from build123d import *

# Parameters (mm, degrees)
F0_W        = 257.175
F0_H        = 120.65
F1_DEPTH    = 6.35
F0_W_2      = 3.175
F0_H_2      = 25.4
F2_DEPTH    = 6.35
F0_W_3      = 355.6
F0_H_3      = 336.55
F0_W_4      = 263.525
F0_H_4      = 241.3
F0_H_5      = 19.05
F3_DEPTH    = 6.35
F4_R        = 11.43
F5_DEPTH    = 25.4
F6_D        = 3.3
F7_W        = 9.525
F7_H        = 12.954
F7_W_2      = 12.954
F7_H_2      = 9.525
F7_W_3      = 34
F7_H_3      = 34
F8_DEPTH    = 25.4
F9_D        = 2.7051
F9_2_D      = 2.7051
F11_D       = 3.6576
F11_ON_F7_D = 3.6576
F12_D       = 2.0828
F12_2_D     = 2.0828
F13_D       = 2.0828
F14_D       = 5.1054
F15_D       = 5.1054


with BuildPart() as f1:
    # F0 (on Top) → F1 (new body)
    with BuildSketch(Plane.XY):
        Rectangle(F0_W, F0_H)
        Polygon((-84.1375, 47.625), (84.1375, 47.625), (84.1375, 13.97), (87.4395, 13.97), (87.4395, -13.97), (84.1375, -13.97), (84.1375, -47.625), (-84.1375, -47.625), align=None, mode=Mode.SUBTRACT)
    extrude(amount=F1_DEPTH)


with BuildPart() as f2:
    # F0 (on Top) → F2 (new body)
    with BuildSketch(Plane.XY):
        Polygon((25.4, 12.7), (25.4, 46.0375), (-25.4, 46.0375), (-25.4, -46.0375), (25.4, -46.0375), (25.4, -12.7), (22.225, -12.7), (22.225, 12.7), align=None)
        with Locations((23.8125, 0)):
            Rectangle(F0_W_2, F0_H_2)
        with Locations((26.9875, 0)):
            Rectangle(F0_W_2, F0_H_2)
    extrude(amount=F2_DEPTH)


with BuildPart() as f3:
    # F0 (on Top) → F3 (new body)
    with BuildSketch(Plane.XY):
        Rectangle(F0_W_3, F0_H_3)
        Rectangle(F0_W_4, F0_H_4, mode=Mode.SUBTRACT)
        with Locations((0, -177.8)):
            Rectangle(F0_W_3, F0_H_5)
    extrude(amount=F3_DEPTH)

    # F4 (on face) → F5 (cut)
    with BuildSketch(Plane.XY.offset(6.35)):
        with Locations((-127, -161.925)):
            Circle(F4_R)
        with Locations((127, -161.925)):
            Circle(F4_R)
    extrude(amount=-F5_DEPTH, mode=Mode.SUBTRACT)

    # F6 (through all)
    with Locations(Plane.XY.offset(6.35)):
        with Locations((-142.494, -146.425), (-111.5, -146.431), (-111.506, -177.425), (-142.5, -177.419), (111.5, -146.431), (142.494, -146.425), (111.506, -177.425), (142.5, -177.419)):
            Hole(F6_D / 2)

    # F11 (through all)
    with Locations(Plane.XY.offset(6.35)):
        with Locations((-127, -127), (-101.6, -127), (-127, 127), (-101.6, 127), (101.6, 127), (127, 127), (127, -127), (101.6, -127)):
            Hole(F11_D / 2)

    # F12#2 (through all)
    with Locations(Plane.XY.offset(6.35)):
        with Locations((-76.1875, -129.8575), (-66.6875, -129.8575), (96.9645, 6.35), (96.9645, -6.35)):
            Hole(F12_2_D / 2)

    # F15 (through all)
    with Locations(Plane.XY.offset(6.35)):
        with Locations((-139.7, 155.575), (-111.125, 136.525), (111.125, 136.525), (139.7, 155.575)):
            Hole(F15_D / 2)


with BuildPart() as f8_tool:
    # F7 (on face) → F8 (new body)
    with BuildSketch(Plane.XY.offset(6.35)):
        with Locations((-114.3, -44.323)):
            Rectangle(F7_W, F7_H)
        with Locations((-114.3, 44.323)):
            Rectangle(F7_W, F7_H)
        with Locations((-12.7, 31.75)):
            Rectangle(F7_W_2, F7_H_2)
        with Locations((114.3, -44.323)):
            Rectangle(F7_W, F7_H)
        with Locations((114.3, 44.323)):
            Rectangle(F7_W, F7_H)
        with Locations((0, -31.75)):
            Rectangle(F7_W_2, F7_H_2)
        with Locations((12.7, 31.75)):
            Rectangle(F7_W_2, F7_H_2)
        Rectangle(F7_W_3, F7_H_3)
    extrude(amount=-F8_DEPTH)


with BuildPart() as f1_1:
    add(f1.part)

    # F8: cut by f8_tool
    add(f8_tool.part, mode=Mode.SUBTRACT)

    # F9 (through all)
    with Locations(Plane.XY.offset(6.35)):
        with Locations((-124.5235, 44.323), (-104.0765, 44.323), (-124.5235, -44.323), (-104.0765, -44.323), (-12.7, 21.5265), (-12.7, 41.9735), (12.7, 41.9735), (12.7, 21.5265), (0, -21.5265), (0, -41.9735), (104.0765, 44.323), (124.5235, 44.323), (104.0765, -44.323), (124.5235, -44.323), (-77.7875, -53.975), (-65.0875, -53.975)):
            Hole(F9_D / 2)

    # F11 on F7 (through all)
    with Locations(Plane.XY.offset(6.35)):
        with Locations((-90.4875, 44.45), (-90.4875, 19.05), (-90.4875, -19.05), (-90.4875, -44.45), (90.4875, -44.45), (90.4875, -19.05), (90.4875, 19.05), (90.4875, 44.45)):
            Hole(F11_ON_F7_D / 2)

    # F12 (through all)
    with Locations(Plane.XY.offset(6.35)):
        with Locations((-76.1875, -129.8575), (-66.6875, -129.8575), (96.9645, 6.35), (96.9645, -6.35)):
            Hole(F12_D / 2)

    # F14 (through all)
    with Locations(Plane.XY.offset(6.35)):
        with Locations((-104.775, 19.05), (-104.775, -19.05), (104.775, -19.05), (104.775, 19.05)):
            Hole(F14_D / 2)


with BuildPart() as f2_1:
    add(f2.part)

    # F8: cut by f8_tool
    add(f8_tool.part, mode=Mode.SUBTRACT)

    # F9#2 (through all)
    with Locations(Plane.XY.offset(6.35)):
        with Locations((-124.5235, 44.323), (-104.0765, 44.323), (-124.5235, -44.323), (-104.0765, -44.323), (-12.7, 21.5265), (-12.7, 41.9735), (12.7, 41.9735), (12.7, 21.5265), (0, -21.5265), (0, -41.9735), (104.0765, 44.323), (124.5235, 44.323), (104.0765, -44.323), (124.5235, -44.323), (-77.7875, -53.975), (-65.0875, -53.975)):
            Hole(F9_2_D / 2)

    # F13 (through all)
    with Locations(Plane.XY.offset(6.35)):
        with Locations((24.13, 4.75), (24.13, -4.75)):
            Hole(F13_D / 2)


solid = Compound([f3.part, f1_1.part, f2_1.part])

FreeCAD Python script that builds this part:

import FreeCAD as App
import Part
import Sketcher
from FreeCAD import Vector
Q = App.Units.Quantity

doc = App.newDocument("Part")
body = doc.addObject("PartDesign::Body", "Body")

# Sketch on XY plane
sketch1 = doc.addObject("Sketcher::SketchObject", "Sketch")
body.addObject(sketch1)
sketch1.AttachmentSupport = (doc.XY_Plane, [""])
sketch1.MapMode = "FlatFace"
sketch1.addGeometry([
    Part.LineSegment(Vector(-128.6, 60.3, 0), Vector(-128.6, -60.3, 0)),  # 0
    Part.LineSegment(Vector(-128.6, -60.3, 0), Vector(128.6, -60.3, 0)),  # 1
    Part.LineSegment(Vector(128.6, -60.3, 0), Vector(128.6, 60.3, 0)),  # 2
    Part.LineSegment(Vector(128.6, 60.3, 0), Vector(-128.6, 60.3, 0)),  # 3
    Part.LineSegment(Vector(-84.1, -47.6, 0), Vector(-84.1, 47.6, 0)),  # 4
    Part.LineSegment(Vector(-84.1, 47.6, 0), Vector(84.1, 47.6, 0)),  # 5
    Part.LineSegment(Vector(84.1, 47.6, 0), Vector(84.1, 14, 0)),  # 6
    Part.LineSegment(Vector(84.1, 14, 0), Vector(87.4, 14, 0)),  # 7
    Part.LineSegment(Vector(87.4, 14, 0), Vector(87.4, -14, 0)),  # 8
    Part.LineSegment(Vector(87.4, -14, 0), Vector(84.1, -14, 0)),  # 9
    Part.LineSegment(Vector(84.1, -14, 0), Vector(84.1, -47.6, 0)),  # 10
    Part.LineSegment(Vector(84.1, -47.6, 0), Vector(-84.1, -47.6, 0)),  # 11
], False)
sketch1.addConstraint([
    Sketcher.Constraint("Coincident", 0, 2, 1, 1),
    Sketcher.Constraint("Coincident", 1, 2, 2, 1),
    Sketcher.Constraint("Coincident", 2, 2, 3, 1),
    Sketcher.Constraint("Coincident", 3, 2, 0, 1),
    Sketcher.Constraint("Coincident", 4, 2, 5, 1),
    Sketcher.Constraint("Coincident", 5, 2, 6, 1),
    Sketcher.Constraint("Coincident", 6, 2, 7, 1),
    Sketcher.Constraint("Coincident", 7, 2, 8, 1),
    Sketcher.Constraint("Coincident", 8, 2, 9, 1),
    Sketcher.Constraint("Coincident", 9, 2, 10, 1),
    Sketcher.Constraint("Coincident", 10, 2, 11, 1),
    Sketcher.Constraint("Coincident", 11, 2, 4, 1),
    Sketcher.Constraint("Vertical", 0),
    Sketcher.Constraint("Horizontal", 1),
    Sketcher.Constraint("Vertical", 2),
    Sketcher.Constraint("Horizontal", 3),
    Sketcher.Constraint("Vertical", 4),
    Sketcher.Constraint("Horizontal", 5),
    Sketcher.Constraint("Vertical", 6),
    Sketcher.Constraint("Horizontal", 7),
    Sketcher.Constraint("Vertical", 8),
    Sketcher.Constraint("Horizontal", 9),
    Sketcher.Constraint("Vertical", 10),
    Sketcher.Constraint("Horizontal", 11),
    Sketcher.Constraint("Symmetric", 0, 2, 2, 2, -1, 1),
    Sketcher.Constraint("Symmetric", 4, 2, 10, 2, -1, 1),
    Sketcher.Constraint("Symmetric", 6, 2, 9, 2, -1),
    Sketcher.Constraint("DistanceY", 8, 2, 8, 1, Q("1.1 in")),
    Sketcher.Constraint("DistanceX", 7, 1, 7, 2, Q("0.13 in")),
    Sketcher.Constraint("DistanceY", 0, 2, 0, 1, Q("4.75 in")),
    Sketcher.Constraint("DistanceY", 4, 1, 4, 2, Q("3.75 in")),
    Sketcher.Constraint("DistanceX", 1, 1, 1, 2, Q("10.125 in")),
    Sketcher.Constraint("DistanceX", 5, 1, 5, 2, Q("6.625 in")),
])
pad1 = doc.addObject("PartDesign::Pad", "Pad")
body.addObject(pad1)
pad1.Profile = sketch1
pad1.Length = Q("0.25 in")
body2 = doc.addObject("PartDesign::Body", "Body001")

# Sketch on XY plane
sketch2 = doc.addObject("Sketcher::SketchObject", "Sketch001")
body2.addObject(sketch2)
sketch2.AttachmentSupport = (doc.getObject("XY_Plane001"), [""])
sketch2.MapMode = "FlatFace"
sketch2.addGeometry([
    Part.LineSegment(Vector(25.4, 46, 0), Vector(-25.4, 46, 0)),  # 0
    Part.LineSegment(Vector(-25.4, 46, 0), Vector(-25.4, -46, 0)),  # 1
    Part.LineSegment(Vector(-25.4, -46, 0), Vector(25.4, -46, 0)),  # 2
    Part.LineSegment(Vector(25.4, -46, 0), Vector(25.4, -12.7, 0)),  # 3
    Part.LineSegment(Vector(25.4, -12.7, 0), Vector(28.6, -12.7, 0)),  # 4
    Part.LineSegment(Vector(28.6, -12.7, 0), Vector(28.6, 12.7, 0)),  # 5
    Part.LineSegment(Vector(28.6, 12.7, 0), Vector(25.4, 12.7, 0)),  # 6
    Part.LineSegment(Vector(25.4, 12.7, 0), Vector(25.4, 46, 0)),  # 7
], False)
sketch2.addConstraint([
    Sketcher.Constraint("Coincident", 0, 2, 1, 1),
    Sketcher.Constraint("Coincident", 1, 2, 2, 1),
    Sketcher.Constraint("Coincident", 2, 2, 3, 1),
    Sketcher.Constraint("Coincident", 3, 2, 4, 1),
    Sketcher.Constraint("Coincident", 4, 2, 5, 1),
    Sketcher.Constraint("Coincident", 5, 2, 6, 1),
    Sketcher.Constraint("Coincident", 6, 2, 7, 1),
    Sketcher.Constraint("Coincident", 7, 2, 0, 1),
    Sketcher.Constraint("Horizontal", 0),
    Sketcher.Constraint("Vertical", 1),
    Sketcher.Constraint("Horizontal", 2),
    Sketcher.Constraint("Vertical", 3),
    Sketcher.Constraint("Horizontal", 4),
    Sketcher.Constraint("Vertical", 5),
    Sketcher.Constraint("Horizontal", 6),
    Sketcher.Constraint("Vertical", 7),
    Sketcher.Constraint("Symmetric", 0, 2, 2, 2, -1, 1),
    Sketcher.Constraint("Symmetric", 3, 2, 6, 2, -1),
    Sketcher.Constraint("DistanceX", 0, 2, 0, 1, Q("2 in")),
    Sketcher.Constraint("DistanceY", 5, 1, 5, 2, Q("1 in")),
    Sketcher.Constraint("DistanceX", 4, 1, 4, 2, Q("0.125 in")),
    Sketcher.Constraint("DistanceY", 1, 2, 1, 1, Q("3.625 in")),
])
pad2 = doc.addObject("PartDesign::Pad", "Pad001")
body2.addObject(pad2)
pad2.Profile = sketch2
pad2.Length = Q("0.25 in")
body3 = doc.addObject("PartDesign::Body", "Body002")

# Sketch on XY plane
sketch3 = doc.addObject("Sketcher::SketchObject", "Sketch002")
body3.addObject(sketch3)
sketch3.AttachmentSupport = (doc.getObject("XY_Plane002"), [""])
sketch3.MapMode = "FlatFace"
sketch3.addGeometry([
    Part.LineSegment(Vector(-178, 168, 0), Vector(-178, -187, 0)),  # 0
    Part.LineSegment(Vector(-178, -187, 0), Vector(178, -187, 0)),  # 1
    Part.LineSegment(Vector(178, -187, 0), Vector(178, 168, 0)),  # 2
    Part.LineSegment(Vector(178, 168, 0), Vector(-178, 168, 0)),  # 3
    Part.LineSegment(Vector(132, -121, 0), Vector(-132, -121, 0)),  # 4
    Part.LineSegment(Vector(-132, -121, 0), Vector(-132, 121, 0)),  # 5
    Part.LineSegment(Vector(-132, 121, 0), Vector(132, 121, 0)),  # 6
    Part.LineSegment(Vector(132, 121, 0), Vector(132, -121, 0)),  # 7
], False)
sketch3.addConstraint([
    Sketcher.Constraint("Coincident", 0, 2, 1, 1),
    Sketcher.Constraint("Coincident", 1, 2, 2, 1),
    Sketcher.Constraint("Coincident", 2, 2, 3, 1),
    Sketcher.Constraint("Coincident", 3, 2, 0, 1),
    Sketcher.Constraint("Coincident", 4, 2, 5, 1),
    Sketcher.Constraint("Coincident", 5, 2, 6, 1),
    Sketcher.Constraint("Coincident", 6, 2, 7, 1),
    Sketcher.Constraint("Coincident", 7, 2, 4, 1),
    Sketcher.Constraint("Vertical", 0),
    Sketcher.Constraint("Horizontal", 1),
    Sketcher.Constraint("Vertical", 2),
    Sketcher.Constraint("Horizontal", 3),
    Sketcher.Constraint("Horizontal", 4),
    Sketcher.Constraint("Vertical", 5),
    Sketcher.Constraint("Horizontal", 6),
    Sketcher.Constraint("Vertical", 7),
    Sketcher.Constraint("Symmetric", 4, 2, 6, 2, -1, 1),
    Sketcher.Constraint("Equal", 3, 0),
    Sketcher.Constraint("DistanceX", 1, 1, 1, 2, Q("14 in")),
    Sketcher.Constraint("DistanceY", 5, 1, 5, 2, Q("9.5 in")),
    Sketcher.Constraint("DistanceX", 0, 2, -1, 1, Q("7 in")),
    Sketcher.Constraint("DistanceX", 4, 2, 4, 1, Q("10.375 in")),
    Sketcher.Constraint("DistanceY", 0, 2, -1, 1, Q("7.375 in")),
])
pad3 = doc.addObject("PartDesign::Pad", "Pad002")
body3.addObject(pad3)
pad3.Profile = sketch3
pad3.Length = Q("0.25 in")

# Sketch on XY plane
sketch4 = doc.addObject("Sketcher::SketchObject", "Sketch003")
body3.addObject(sketch4)
sketch4.AttachmentSupport = (doc.getObject("XY_Plane002"), [""])
sketch4.MapMode = "FlatFace"
sketch4.AttachmentOffset = App.Placement(Vector(0, 0, 0.25 * 25.4), App.Rotation())
sketch4.addGeometry([
    Part.Circle(Vector(-127, -162, 0), Vector(0, 0, 1), 11),
    Part.Circle(Vector(127, -162, 0), Vector(0, 0, 1), 11),
], False)
sketch4.addConstraint([
    Sketcher.Constraint("Equal", 0, 1),
    Sketcher.Constraint("Symmetric", 0, 3, 1, 3, -2),
    Sketcher.Constraint("Diameter", 0, Q("0.9 in")),
    Sketcher.Constraint("DistanceX", 0, 3, -1, 1, Q("5 in")),
    Sketcher.Constraint("DistanceY", 0, 3, -1, 1, Q("6.375 in")),
])
pocket1 = doc.addObject("PartDesign::Pocket", "Pocket")
body3.addObject(pocket1)
pocket1.Profile = sketch4
pocket1.Length = Q("1 in")

# Sketch on XY plane
sketch5 = doc.addObject("Sketcher::SketchObject", "Sketch004")
body3.addObject(sketch5)
sketch5.AttachmentSupport = (doc.getObject("XY_Plane002"), [""])
sketch5.MapMode = "FlatFace"
sketch5.AttachmentOffset = App.Placement(Vector(0, 0, 0.25 * 25.4), App.Rotation())
sketch5.addGeometry([
    Part.Circle(Vector(-142.5, -146.4, 0), Vector(0, 0, 1), 1.6),  # 0
    Part.Circle(Vector(-111.5, -146.4, 0), Vector(0, 0, 1), 1.6),  # 1
    Part.Circle(Vector(-111.5, -177.4, 0), Vector(0, 0, 1), 1.6),  # 2
    Part.Circle(Vector(-142.5, -177.4, 0), Vector(0, 0, 1), 1.6),  # 3
    Part.Circle(Vector(111.5, -146.4, 0), Vector(0, 0, 1), 1.6),  # 4
    Part.Circle(Vector(142.5, -146.4, 0), Vector(0, 0, 1), 1.6),  # 5
    Part.Circle(Vector(111.5, -177.4, 0), Vector(0, 0, 1), 1.6),  # 6
    Part.Circle(Vector(142.5, -177.4, 0), Vector(0, 0, 1), 1.6),  # 7
], False)
sketch5.addConstraint([
    Sketcher.Constraint("Equal", 0, 1),
    Sketcher.Constraint("Equal", 1, 2),
    Sketcher.Constraint("Equal", 2, 3),
    Sketcher.Constraint("Equal", 3, 4),
    Sketcher.Constraint("Equal", 4, 5),
    Sketcher.Constraint("Equal", 5, 6),
    Sketcher.Constraint("Equal", 6, 7),
    Sketcher.Constraint("Symmetric", 1, 3, 4, 3, -2),
    Sketcher.Constraint("Symmetric", 0, 3, 5, 3, -2),
    Sketcher.Constraint("Symmetric", 2, 3, 6, 3, -2),
    Sketcher.Constraint("Symmetric", 3, 3, 7, 3, -2),
    Sketcher.Constraint("DistanceX", 3, 3, 4, 3, Q("10 in")),
    Sketcher.Constraint("DistanceX", 2, 3, 5, 3, Q("10 in")),
    Sketcher.Constraint("Diameter", 0, Q("3.3 mm")),
    Sketcher.Constraint("DistanceX", 0, 3, -1, 1, Q("5.61 in")),
    Sketcher.Constraint("DistanceY", 3, 3, 1, 3, Q("1.22 in")),
    Sketcher.Constraint("DistanceY", 1, 3, -1, 1, Q("5.765 in")),
    Sketcher.Constraint("DistanceY", 0, 3, -1, 1, Q("146.425 mm")),
    Sketcher.Constraint("DistanceX", 1, 3, -1, 1, Q("111.5 mm")),
    Sketcher.Constraint("DistanceY", 2, 3, -1, 1, Q("177.425 mm")),
])
doc.recompute()
hole = doc.addObject("PartDesign::Hole", "Hole")
body3.addObject(hole)
hole.Profile = sketch5
hole.ThreadType = "None"
hole.Diameter = 3.3
hole.DepthType = "ThroughAll"

# Sketch on XY plane
sketch6 = doc.addObject("Sketcher::SketchObject", "Sketch005")
body3.addObject(sketch6)
sketch6.AttachmentSupport = (doc.getObject("XY_Plane002"), [""])
sketch6.MapMode = "FlatFace"
sketch6.AttachmentOffset = App.Placement(Vector(0, 0, 0.25 * 25.4), App.Rotation())
sketch6.addGeometry([
    Part.Circle(Vector(-127, -127, 0), Vector(0, 0, 1), 1.8),  # 0
    Part.Circle(Vector(-101.6, -127, 0), Vector(0, 0, 1), 1.8),  # 1
    Part.Circle(Vector(-127, 127, 0), Vector(0, 0, 1), 1.8),  # 2
    Part.Circle(Vector(-101.6, 127, 0), Vector(0, 0, 1), 1.8),  # 3
    Part.Circle(Vector(101.6, 127, 0), Vector(0, 0, 1), 1.8),  # 4
    Part.Circle(Vector(127, 127, 0), Vector(0, 0, 1), 1.8),  # 5
    Part.Circle(Vector(127, -127, 0), Vector(0, 0, 1), 1.8),  # 6
    Part.Circle(Vector(101.6, -127, 0), Vector(0, 0, 1), 1.8),  # 7
], False)
sketch6.addConstraint([
    Sketcher.Constraint("Equal", 0, 1),
    Sketcher.Constraint("Equal", 1, 2),
    Sketcher.Constraint("Equal", 2, 3),
    Sketcher.Constraint("Equal", 3, 4),
    Sketcher.Constraint("Equal", 4, 5),
    Sketcher.Constraint("Equal", 5, 6),
    Sketcher.Constraint("Equal", 6, 7),
    Sketcher.Constraint("Symmetric", 1, 3, 4, 3, -1, 1),
    Sketcher.Constraint("Symmetric", 0, 3, 5, 3, -1, 1),
    Sketcher.Constraint("Symmetric", 2, 3, 6, 3, -1, 1),
    Sketcher.Constraint("Symmetric", 3, 3, 7, 3, -1, 1),
    Sketcher.Constraint("Symmetric", 3, 3, 4, 3, -2),
    Sketcher.Constraint("Symmetric", 2, 3, 5, 3, -2),
    Sketcher.Constraint("Horizontal", 0, 3, 1, 3),
    Sketcher.Constraint("Diameter", 0, Q("0.144 in")),
    Sketcher.Constraint("DistanceX", 0, 3, -1, 1, Q("5 in")),
    Sketcher.Constraint("DistanceY", 0, 3, -1, 1, Q("5 in")),
    Sketcher.Constraint("DistanceX", 1, 3, -1, 1, Q("4 in")),
])
doc.recompute()
hole2 = doc.addObject("PartDesign::Hole", "Hole001")
body3.addObject(hole2)
hole2.Profile = sketch6
hole2.ThreadType = "None"
hole2.Diameter = Q("0.144 in")
hole2.DepthType = "ThroughAll"

# Sketch on XY plane
sketch7 = doc.addObject("Sketcher::SketchObject", "Sketch006")
body3.addObject(sketch7)
sketch7.AttachmentSupport = (doc.getObject("XY_Plane002"), [""])
sketch7.MapMode = "FlatFace"
sketch7.AttachmentOffset = App.Placement(Vector(0, 0, 0.25 * 25.4), App.Rotation())
sketch7.addGeometry([
    Part.Circle(Vector(-76.2, -129.9, 0), Vector(0, 0, 1), 1),
    Part.Circle(Vector(-66.7, -129.9, 0), Vector(0, 0, 1), 1),
    Part.Circle(Vector(97, 6.3, 0), Vector(0, 0, 1), 1),
    Part.Circle(Vector(97, -6.3, 0), Vector(0, 0, 1), 1),
], False)
sketch7.addConstraint([
    Sketcher.Constraint("Equal", 0, 1),
    Sketcher.Constraint("Equal", 1, 2),
    Sketcher.Constraint("Equal", 2, 3),
    Sketcher.Constraint("Symmetric", 2, 3, 3, 3, -1),
    Sketcher.Constraint("Horizontal", 0, 3, 1, 3),
    Sketcher.Constraint("Diameter", 0, Q("0.082 in")),
    Sketcher.Constraint("DistanceY", 3, 3, 2, 3, Q("0.5 in")),
    Sketcher.Constraint("DistanceY", 0, 3, -1, 1, Q("5.1125 in")),
    Sketcher.Constraint("DistanceX", -1, 1, 2, 3, Q("3.8175 in")),
    Sketcher.Constraint("DistanceX", 0, 3, -1, 1, Q("76.1875 mm")),
    Sketcher.Constraint("DistanceX", 1, 3, -1, 1, Q("66.6875 mm")),
])
doc.recompute()
hole3 = doc.addObject("PartDesign::Hole", "Hole002")
body3.addObject(hole3)
hole3.Profile = sketch7
hole3.ThreadType = "None"
hole3.Diameter = Q("0.082 in")
hole3.DepthType = "ThroughAll"

# Sketch on XY plane
sketch8 = doc.addObject("Sketcher::SketchObject", "Sketch007")
body3.addObject(sketch8)
sketch8.AttachmentSupport = (doc.getObject("XY_Plane002"), [""])
sketch8.MapMode = "FlatFace"
sketch8.AttachmentOffset = App.Placement(Vector(0, 0, 0.25 * 25.4), App.Rotation())
sketch8.addGeometry([
    Part.Circle(Vector(-139.7, 155.6, 0), Vector(0, 0, 1), 2.6),
    Part.Circle(Vector(-111.1, 136.5, 0), Vector(0, 0, 1), 2.6),
    Part.Circle(Vector(111.1, 136.5, 0), Vector(0, 0, 1), 2.6),
    Part.Circle(Vector(139.7, 155.6, 0), Vector(0, 0, 1), 2.6),
], False)
sketch8.addConstraint([
    Sketcher.Constraint("Equal", 0, 1),
    Sketcher.Constraint("Equal", 1, 2),
    Sketcher.Constraint("Equal", 2, 3),
    Sketcher.Constraint("Symmetric", 1, 3, 2, 3, -2),
    Sketcher.Constraint("Symmetric", 0, 3, 3, 3, -2),
    Sketcher.Constraint("Diameter", 0, Q("0.201 in")),
    Sketcher.Constraint("DistanceX", 0, 3, 3, 3, Q("11 in")),
    Sketcher.Constraint("DistanceY", 1, 3, 0, 3, Q("0.75 in")),
    Sketcher.Constraint("DistanceX", 1, 3, 2, 3, Q("8.75 in")),
    Sketcher.Constraint("DistanceY", -1, 1, 0, 3, Q("6.125 in")),
])
doc.recompute()
hole4 = doc.addObject("PartDesign::Hole", "Hole003")
body3.addObject(hole4)
hole4.Profile = sketch8
hole4.ThreadType = "None"
hole4.Diameter = Q("0.201 in")
hole4.DepthType = "ThroughAll"
body4 = doc.addObject("PartDesign::Body", "Body003")
body4.AllowCompound = True

# Sketch on XY plane
sketch9 = doc.addObject("Sketcher::SketchObject", "Sketch008")
body4.addObject(sketch9)
sketch9.AttachmentSupport = (doc.getObject("XY_Plane003"), [""])
sketch9.MapMode = "FlatFace"
sketch9.AttachmentOffset = App.Placement(Vector(0, 0, 0.25 * 25.4), App.Rotation())
sketch9.addGeometry([
    Part.LineSegment(Vector(-119, -38, 0), Vector(-119, -51, 0)),  # 0
    Part.LineSegment(Vector(-119, -51, 0), Vector(-110, -51, 0)),  # 1
    Part.LineSegment(Vector(-110, -51, 0), Vector(-110, -38, 0)),  # 2
    Part.LineSegment(Vector(-110, -38, 0), Vector(-119, -38, 0)),  # 3
    Part.LineSegment(Vector(-119, 51, 0), Vector(-119, 38, 0)),  # 4
    Part.LineSegment(Vector(-119, 38, 0), Vector(-110, 38, 0)),  # 5
    Part.LineSegment(Vector(-110, 38, 0), Vector(-110, 51, 0)),  # 6
    Part.LineSegment(Vector(-110, 51, 0), Vector(-119, 51, 0)),  # 7
    Part.LineSegment(Vector(-19, 37, 0), Vector(-19, 27, 0)),  # 8
    Part.LineSegment(Vector(-19, 27, 0), Vector(-6, 27, 0)),  # 9
    Part.LineSegment(Vector(-6, 27, 0), Vector(-6, 37, 0)),  # 10
    Part.LineSegment(Vector(-6, 37, 0), Vector(-19, 37, 0)),  # 11
    Part.LineSegment(Vector(110, -38, 0), Vector(110, -51, 0)),  # 12
    Part.LineSegment(Vector(110, -51, 0), Vector(119, -51, 0)),  # 13
    Part.LineSegment(Vector(119, -51, 0), Vector(119, -38, 0)),  # 14
    Part.LineSegment(Vector(119, -38, 0), Vector(110, -38, 0)),  # 15
    Part.LineSegment(Vector(110, 51, 0), Vector(110, 38, 0)),  # 16
    Part.LineSegment(Vector(110, 38, 0), Vector(119, 38, 0)),  # 17
    Part.LineSegment(Vector(119, 38, 0), Vector(119, 51, 0)),  # 18
    Part.LineSegment(Vector(119, 51, 0), Vector(110, 51, 0)),  # 19
    Part.LineSegment(Vector(-6, -27, 0), Vector(-6, -37, 0)),  # 20
    Part.LineSegment(Vector(-6, -37, 0), Vector(6, -37, 0)),  # 21
    Part.LineSegment(Vector(6, -37, 0), Vector(6, -27, 0)),  # 22
    Part.LineSegment(Vector(6, -27, 0), Vector(-6, -27, 0)),  # 23
    Part.LineSegment(Vector(6, 37, 0), Vector(6, 27, 0)),  # 24
    Part.LineSegment(Vector(6, 27, 0), Vector(19, 27, 0)),  # 25
    Part.LineSegment(Vector(19, 27, 0), Vector(19, 37, 0)),  # 26
    Part.LineSegment(Vector(19, 37, 0), Vector(6, 37, 0)),  # 27
    Part.LineSegment(Vector(-17, 17, 0), Vector(-17, -17, 0)),  # 28
    Part.LineSegment(Vector(-17, -17, 0), Vector(17, -17, 0)),  # 29
    Part.LineSegment(Vector(17, -17, 0), Vector(17, 17, 0)),  # 30
    Part.LineSegment(Vector(17, 17, 0), Vector(-17, 17, 0)),  # 31
], False)
sketch9.addConstraint([
    Sketcher.Constraint("Coincident", 0, 2, 1, 1),
    Sketcher.Constraint("Coincident", 1, 2, 2, 1),
    Sketcher.Constraint("Coincident", 2, 2, 3, 1),
    Sketcher.Constraint("Coincident", 3, 2, 0, 1),
    Sketcher.Constraint("Coincident", 4, 2, 5, 1),
    Sketcher.Constraint("Coincident", 5, 2, 6, 1),
    Sketcher.Constraint("Coincident", 6, 2, 7, 1),
    Sketcher.Constraint("Coincident", 7, 2, 4, 1),
    Sketcher.Constraint("Coincident", 8, 2, 9, 1),
    Sketcher.Constraint("Coincident", 9, 2, 10, 1),
    Sketcher.Constraint("Coincident", 10, 2, 11, 1),
    Sketcher.Constraint("Coincident", 11, 2, 8, 1),
    Sketcher.Constraint("Coincident", 12, 2, 13, 1),
    Sketcher.Constraint("Coincident", 13, 2, 14, 1),
    Sketcher.Constraint("Coincident", 14, 2, 15, 1),
    Sketcher.Constraint("Coincident", 15, 2, 12, 1),
    Sketcher.Constraint("Coincident", 16, 2, 17, 1),
    Sketcher.Constraint("Coincident", 17, 2, 18, 1),
    Sketcher.Constraint("Coincident", 18, 2, 19, 1),
    Sketcher.Constraint("Coincident", 19, 2, 16, 1),
    Sketcher.Constraint("Coincident", 20, 2, 21, 1),
    Sketcher.Constraint("Coincident", 21, 2, 22, 1),
    Sketcher.Constraint("Coincident", 22, 2, 23, 1),
    Sketcher.Constraint("Coincident", 23, 2, 20, 1),
    Sketcher.Constraint("Coincident", 24, 2, 25, 1),
    Sketcher.Constraint("Coincident", 25, 2, 26, 1),
    Sketcher.Constraint("Coincident", 26, 2, 27, 1),
    Sketcher.Constraint("Coincident", 27, 2, 24, 1),
    Sketcher.Constraint("Coincident", 28, 2, 29, 1),
    Sketcher.Constraint("Coincident", 29, 2, 30, 1),
    Sketcher.Constraint("Coincident", 30, 2, 31, 1),
    Sketcher.Constraint("Coincident", 31, 2, 28, 1),
    Sketcher.Constraint("Vertical", 0),
    Sketcher.Constraint("Horizontal", 1),
    Sketcher.Constraint("Vertical", 2),
    Sketcher.Constraint("Horizontal", 3),
    Sketcher.Constraint("Vertical", 4),
    Sketcher.Constraint("Horizontal", 5),
    Sketcher.Constraint("Vertical", 6),
    Sketcher.Constraint("Horizontal", 7),
    Sketcher.Constraint("Vertical", 8),
    Sketcher.Constraint("Horizontal", 9),
    Sketcher.Constraint("Vertical", 10),
    Sketcher.Constraint("Horizontal", 11),
    Sketcher.Constraint("Vertical", 12),
    Sketcher.Constraint("Horizontal", 13),
    Sketcher.Constraint("Vertical", 14),
    Sketcher.Constraint("Horizontal", 15),
    Sketcher.Constraint("Vertical", 16),
    Sketcher.Constraint("Horizontal", 17),
    Sketcher.Constraint("Vertical", 18),
    Sketcher.Constraint("Horizontal", 19),
    Sketcher.Constraint("Vertical", 20),
    Sketcher.Constraint("Horizontal", 21),
    Sketcher.Constraint("Vertical", 22),
    Sketcher.Constraint("Horizontal", 23),
    Sketcher.Constraint("Vertical", 24),
    Sketcher.Constraint("Horizontal", 25),
    Sketcher.Constraint("Vertical", 26),
    Sketcher.Constraint("Horizontal", 27),
    Sketcher.Constraint("Vertical", 28),
    Sketcher.Constraint("Horizontal", 29),
    Sketcher.Constraint("Vertical", 30),
    Sketcher.Constraint("Horizontal", 31),
    Sketcher.Constraint("Symmetric", 6, 2, 12, 2, -1, 1),
    Sketcher.Constraint("Symmetric", 4, 2, 14, 2, -1, 1),
    Sketcher.Constraint("Symmetric", 2, 2, 16, 2, -1, 1),
    Sketcher.Constraint("Symmetric", 0, 2, 18, 2, -1, 1),
    Sketcher.Constraint("Symmetric", 28, 2, 30, 2, -1, 1),
    Sketcher.Constraint("Symmetric", 1, 2, 12, 2, -2),
    Sketcher.Constraint("Symmetric", 3, 2, 14, 2, -2),
    Sketcher.Constraint("Symmetric", 9, 2, 24, 2, -2),
    Sketcher.Constraint("Symmetric", 11, 2, 26, 2, -2),
    Sketcher.Constraint("Equal", 11, 21),
    Sketcher.Constraint("Equal", 27, 0),
    Sketcher.Constraint("Equal", 19, 8),
    Sketcher.Constraint("Equal", 10, 20),
    Sketcher.Constraint("Equal", 31, 28),
    Sketcher.Constraint("DistanceY", 0, 2, -1, 1, Q("2 in")),
    Sketcher.Constraint("DistanceX", 8, 2, 24, 2, Q("1 in")),
    Sketcher.Constraint("DistanceX", 9, 1, 9, 2, Q("0.51 in")),
    Sketcher.Constraint("DistanceY", 20, 2, 9, 2, Q("2.5 in")),
    Sketcher.Constraint("DistanceX", 8, 2, 20, 2, Q("0.5 in")),
    Sketcher.Constraint("DistanceX", 1, 1, 1, 2, Q("0.375 in")),
    Sketcher.Constraint("DistanceX", 0, 2, -1, 1, Q("4.6875 in")),
    Sketcher.Constraint("DistanceY", -1, 1, 8, 2, Q("1.0625 in")),
    Sketcher.Constraint("DistanceX", 29, 1, 29, 2, Q("34 mm")),
])
pad4 = doc.addObject("PartDesign::Pad", "Pad003")
body4.addObject(pad4)
pad4.Profile = sketch9
pad4.Length = Q("1 in")
pad4.Reversed = True
doc.recompute()

body5 = doc.addObject("PartDesign::Body", "Body004")
body5.BaseFeature = body4
boolean = doc.addObject("PartDesign::Boolean", "Boolean")
body.addObject(boolean)
boolean.Type = "Cut"
boolean.addObjects([body5])
doc.recompute()

# Sketch on XY plane
sketch10 = doc.addObject("Sketcher::SketchObject", "Sketch009")
body.addObject(sketch10)
sketch10.AttachmentSupport = (doc.XY_Plane, [""])
sketch10.MapMode = "FlatFace"
sketch10.AttachmentOffset = App.Placement(Vector(0, 0, 0.25 * 25.4), App.Rotation())
sketch10.addGeometry([
    Part.Circle(Vector(-124.5, 44.3, 0), Vector(0, 0, 1), 1.4),  # 0
    Part.Circle(Vector(-104.1, 44.3, 0), Vector(0, 0, 1), 1.4),  # 1
    Part.Circle(Vector(-124.5, -44.3, 0), Vector(0, 0, 1), 1.4),  # 2
    Part.Circle(Vector(-104.1, -44.3, 0), Vector(0, 0, 1), 1.4),  # 3
    Part.Circle(Vector(-12.7, 21.5, 0), Vector(0, 0, 1), 1.4),  # 4
    Part.Circle(Vector(-12.7, 42, 0), Vector(0, 0, 1), 1.4),  # 5
    Part.Circle(Vector(12.7, 42, 0), Vector(0, 0, 1), 1.4),  # 6
    Part.Circle(Vector(12.7, 21.5, 0), Vector(0, 0, 1), 1.4),  # 7
    Part.Circle(Vector(0, -21.5, 0), Vector(0, 0, 1), 1.4),  # 8
    Part.Circle(Vector(0, -42, 0), Vector(0, 0, 1), 1.4),  # 9
    Part.Circle(Vector(104.1, 44.3, 0), Vector(0, 0, 1), 1.4),  # 10
    Part.Circle(Vector(124.5, 44.3, 0), Vector(0, 0, 1), 1.4),  # 11
    Part.Circle(Vector(104.1, -44.3, 0), Vector(0, 0, 1), 1.4),  # 12
    Part.Circle(Vector(124.5, -44.3, 0), Vector(0, 0, 1), 1.4),  # 13
    Part.Circle(Vector(-77.8, -54, 0), Vector(0, 0, 1), 1.4),  # 14
    Part.Circle(Vector(-65.1, -54, 0), Vector(0, 0, 1), 1.4),  # 15
], False)
sketch10.addConstraint([
    Sketcher.Constraint("Equal", 0, 1),
    Sketcher.Constraint("Equal", 1, 2),
    Sketcher.Constraint("Equal", 2, 3),
    Sketcher.Constraint("Equal", 3, 4),
    Sketcher.Constraint("Equal", 4, 5),
    Sketcher.Constraint("Equal", 5, 6),
    Sketcher.Constraint("Equal", 6, 7),
    Sketcher.Constraint("Equal", 7, 8),
    Sketcher.Constraint("Equal", 8, 9),
    Sketcher.Constraint("Equal", 9, 10),
    Sketcher.Constraint("Equal", 10, 11),
    Sketcher.Constraint("Equal", 11, 12),
    Sketcher.Constraint("Equal", 12, 13),
    Sketcher.Constraint("Equal", 13, 14),
    Sketcher.Constraint("Equal", 14, 15),
    Sketcher.Constraint("Symmetric", 3, 3, 10, 3, -1, 1),
    Sketcher.Constraint("Symmetric", 2, 3, 11, 3, -1, 1),
    Sketcher.Constraint("Symmetric", 1, 3, 12, 3, -1, 1),
    Sketcher.Constraint("Symmetric", 0, 3, 13, 3, -1, 1),
    Sketcher.Constraint("Symmetric", 5, 3, 6, 3, -2),
    Sketcher.Constraint("Symmetric", 4, 3, 7, 3, -2),
    Sketcher.Constraint("Symmetric", 1, 3, 10, 3, -2),
    Sketcher.Constraint("Symmetric", 0, 3, 11, 3, -2),
    Sketcher.Constraint("PointOnObject", 8, 3, -2),
    Sketcher.Constraint("PointOnObject", 9, 3, -2),
    Sketcher.Constraint("Horizontal", 0, 3, 1, 3),
    Sketcher.Constraint("Horizontal", 14, 3, 15, 3),
    Sketcher.Constraint("Vertical", 4, 3, 5, 3),
    Sketcher.Constraint("DistanceX", 5, 3, 6, 3, Q("1 in")),
    Sketcher.Constraint("Diameter", 0, Q("0.1065 in")),
    Sketcher.Constraint("DistanceY", 8, 3, 5, 3, Q("2.5 in")),
    Sketcher.Constraint("DistanceY", 9, 3, 4, 3, Q("2.5 in")),
    Sketcher.Constraint("DistanceX", 14, 3, 15, 3, Q("0.5 in")),
    Sketcher.Constraint("DistanceY", 2, 3, 0, 3, Q("3.49 in")),
    Sketcher.Constraint("DistanceY", 14, 3, 3, 3, Q("0.38 in")),
    Sketcher.Constraint("DistanceX", 2, 3, 14, 3, Q("1.84 in")),
    Sketcher.Constraint("DistanceX", 14, 3, -1, 1, Q("3.0625 in")),
    Sketcher.Constraint("DistanceX", 0, 3, 1, 3, Q("0.805 in")),
    Sketcher.Constraint("DistanceY", 4, 3, 5, 3, Q("0.805 in")),
    Sketcher.Constraint("DistanceY", -1, 1, 4, 3, Q("0.8475 in")),
])
doc.recompute()
hole5 = doc.addObject("PartDesign::Hole", "Hole004")
body.addObject(hole5)
hole5.Profile = sketch10
hole5.ThreadType = "None"
hole5.Diameter = Q("0.1065 in")
hole5.DepthType = "ThroughAll"

# Sketch on XY plane
sketch11 = doc.addObject("Sketcher::SketchObject", "Sketch010")
body.addObject(sketch11)
sketch11.AttachmentSupport = (doc.XY_Plane, [""])
sketch11.MapMode = "FlatFace"
sketch11.AttachmentOffset = App.Placement(Vector(0, 0, 0.25 * 25.4), App.Rotation())
sketch11.addGeometry([
    Part.Circle(Vector(-90.5, 44.5, 0), Vector(0, 0, 1), 1.8),  # 0
    Part.Circle(Vector(-90.5, 19.1, 0), Vector(0, 0, 1), 1.8),  # 1
    Part.Circle(Vector(-90.5, -19.1, 0), Vector(0, 0, 1), 1.8),  # 2
    Part.Circle(Vector(-90.5, -44.5, 0), Vector(0, 0, 1), 1.8),  # 3
    Part.Circle(Vector(90.5, -44.5, 0), Vector(0, 0, 1), 1.8),  # 4
    Part.Circle(Vector(90.5, -19.1, 0), Vector(0, 0, 1), 1.8),  # 5
    Part.Circle(Vector(90.5, 19.1, 0), Vector(0, 0, 1), 1.8),  # 6
    Part.Circle(Vector(90.5, 44.5, 0), Vector(0, 0, 1), 1.8),  # 7
], False)
sketch11.addConstraint([
    Sketcher.Constraint("Equal", 0, 1),
    Sketcher.Constraint("Equal", 1, 2),
    Sketcher.Constraint("Equal", 2, 3),
    Sketcher.Constraint("Equal", 3, 4),
    Sketcher.Constraint("Equal", 4, 5),
    Sketcher.Constraint("Equal", 5, 6),
    Sketcher.Constraint("Equal", 6, 7),
    Sketcher.Constraint("Symmetric", 0, 3, 4, 3, -1, 1),
    Sketcher.Constraint("Symmetric", 1, 3, 5, 3, -1, 1),
    Sketcher.Constraint("Symmetric", 2, 3, 6, 3, -1, 1),
    Sketcher.Constraint("Symmetric", 3, 3, 7, 3, -1, 1),
    Sketcher.Constraint("Symmetric", 3, 3, 4, 3, -2),
    Sketcher.Constraint("Symmetric", 2, 3, 5, 3, -2),
    Sketcher.Constraint("Vertical", 0, 3, 1, 3),
    Sketcher.Constraint("Diameter", 0, Q("0.144 in")),
    Sketcher.Constraint("DistanceY", 1, 3, 0, 3, Q("1 in")),
    Sketcher.Constraint("DistanceY", 2, 3, 1, 3, Q("1.5 in")),
    Sketcher.Constraint("DistanceX", 0, 3, -1, 1, Q("3.5625 in")),
])
doc.recompute()
hole6 = doc.addObject("PartDesign::Hole", "Hole005")
body.addObject(hole6)
hole6.Profile = sketch11
hole6.ThreadType = "None"
hole6.Diameter = Q("0.144 in")
hole6.DepthType = "ThroughAll"

# Sketch on XY plane
sketch12 = doc.addObject("Sketcher::SketchObject", "Sketch011")
body.addObject(sketch12)
sketch12.AttachmentSupport = (doc.XY_Plane, [""])
sketch12.MapMode = "FlatFace"
sketch12.AttachmentOffset = App.Placement(Vector(0, 0, 0.25 * 25.4), App.Rotation())
sketch12.addGeometry([
    Part.Circle(Vector(-76.2, -129.9, 0), Vector(0, 0, 1), 1),
    Part.Circle(Vector(-66.7, -129.9, 0), Vector(0, 0, 1), 1),
    Part.Circle(Vector(97, 6.3, 0), Vector(0, 0, 1), 1),
    Part.Circle(Vector(97, -6.3, 0), Vector(0, 0, 1), 1),
], False)
sketch12.addConstraint([
    Sketcher.Constraint("Equal", 0, 1),
    Sketcher.Constraint("Equal", 1, 2),
    Sketcher.Constraint("Equal", 2, 3),
    Sketcher.Constraint("Symmetric", 2, 3, 3, 3, -1),
    Sketcher.Constraint("Horizontal", 0, 3, 1, 3),
    Sketcher.Constraint("Diameter", 0, Q("0.082 in")),
    Sketcher.Constraint("DistanceY", 3, 3, 2, 3, Q("0.5 in")),
    Sketcher.Constraint("DistanceY", 0, 3, -1, 1, Q("5.1125 in")),
    Sketcher.Constraint("DistanceX", -1, 1, 2, 3, Q("3.8175 in")),
    Sketcher.Constraint("DistanceX", 0, 3, -1, 1, Q("76.1875 mm")),
    Sketcher.Constraint("DistanceX", 1, 3, -1, 1, Q("66.6875 mm")),
])
doc.recompute()
hole7 = doc.addObject("PartDesign::Hole", "Hole006")
body.addObject(hole7)
hole7.Profile = sketch12
hole7.ThreadType = "None"
hole7.Diameter = Q("0.082 in")
hole7.DepthType = "ThroughAll"

# Sketch on XY plane
sketch13 = doc.addObject("Sketcher::SketchObject", "Sketch012")
body.addObject(sketch13)
sketch13.AttachmentSupport = (doc.XY_Plane, [""])
sketch13.MapMode = "FlatFace"
sketch13.AttachmentOffset = App.Placement(Vector(0, 0, 0.25 * 25.4), App.Rotation())
sketch13.addGeometry([
    Part.Circle(Vector(-104.8, 19.1, 0), Vector(0, 0, 1), 2.6),
    Part.Circle(Vector(-104.8, -19.1, 0), Vector(0, 0, 1), 2.6),
    Part.Circle(Vector(104.8, -19.1, 0), Vector(0, 0, 1), 2.6),
    Part.Circle(Vector(104.8, 19.1, 0), Vector(0, 0, 1), 2.6),
], False)
sketch13.addConstraint([
    Sketcher.Constraint("Equal", 0, 1),
    Sketcher.Constraint("Equal", 1, 2),
    Sketcher.Constraint("Equal", 2, 3),
    Sketcher.Constraint("Symmetric", 0, 3, 2, 3, -1, 1),
    Sketcher.Constraint("Symmetric", 1, 3, 3, 3, -1, 1),
    Sketcher.Constraint("Symmetric", 1, 3, 2, 3, -2),
    Sketcher.Constraint("Diameter", 0, Q("0.201 in")),
    Sketcher.Constraint("DistanceY", 1, 3, 0, 3, Q("1.5 in")),
    Sketcher.Constraint("DistanceX", 1, 3, 2, 3, Q("8.25 in")),
])
doc.recompute()
hole8 = doc.addObject("PartDesign::Hole", "Hole007")
body.addObject(hole8)
hole8.Profile = sketch13
hole8.ThreadType = "None"
hole8.Diameter = Q("0.201 in")
hole8.DepthType = "ThroughAll"
doc.recompute()

boolean2 = doc.addObject("PartDesign::Boolean", "Boolean001")
body2.addObject(boolean2)
boolean2.Type = "Cut"
boolean2.addObjects([body4])

# Sketch on XY plane
sketch14 = doc.addObject("Sketcher::SketchObject", "Sketch013")
body2.addObject(sketch14)
sketch14.AttachmentSupport = (doc.getObject("XY_Plane001"), [""])
sketch14.MapMode = "FlatFace"
sketch14.AttachmentOffset = App.Placement(Vector(0, 0, 0.25 * 25.4), App.Rotation())
sketch14.addGeometry([
    Part.Circle(Vector(-124.5, 44.3, 0), Vector(0, 0, 1), 1.4),  # 0
    Part.Circle(Vector(-104.1, 44.3, 0), Vector(0, 0, 1), 1.4),  # 1
    Part.Circle(Vector(-124.5, -44.3, 0), Vector(0, 0, 1), 1.4),  # 2
    Part.Circle(Vector(-104.1, -44.3, 0), Vector(0, 0, 1), 1.4),  # 3
    Part.Circle(Vector(-12.7, 21.5, 0), Vector(0, 0, 1), 1.4),  # 4
    Part.Circle(Vector(-12.7, 42, 0), Vector(0, 0, 1), 1.4),  # 5
    Part.Circle(Vector(12.7, 42, 0), Vector(0, 0, 1), 1.4),  # 6
    Part.Circle(Vector(12.7, 21.5, 0), Vector(0, 0, 1), 1.4),  # 7
    Part.Circle(Vector(0, -21.5, 0), Vector(0, 0, 1), 1.4),  # 8
    Part.Circle(Vector(0, -42, 0), Vector(0, 0, 1), 1.4),  # 9
    Part.Circle(Vector(104.1, 44.3, 0), Vector(0, 0, 1), 1.4),  # 10
    Part.Circle(Vector(124.5, 44.3, 0), Vector(0, 0, 1), 1.4),  # 11
    Part.Circle(Vector(104.1, -44.3, 0), Vector(0, 0, 1), 1.4),  # 12
    Part.Circle(Vector(124.5, -44.3, 0), Vector(0, 0, 1), 1.4),  # 13
    Part.Circle(Vector(-77.8, -54, 0), Vector(0, 0, 1), 1.4),  # 14
    Part.Circle(Vector(-65.1, -54, 0), Vector(0, 0, 1), 1.4),  # 15
], False)
sketch14.addConstraint([
    Sketcher.Constraint("Equal", 0, 1),
    Sketcher.Constraint("Equal", 1, 2),
    Sketcher.Constraint("Equal", 2, 3),
    Sketcher.Constraint("Equal", 3, 4),
    Sketcher.Constraint("Equal", 4, 5),
    Sketcher.Constraint("Equal", 5, 6),
    Sketcher.Constraint("Equal", 6, 7),
    Sketcher.Constraint("Equal", 7, 8),
    Sketcher.Constraint("Equal", 8, 9),
    Sketcher.Constraint("Equal", 9, 10),
    Sketcher.Constraint("Equal", 10, 11),
    Sketcher.Constraint("Equal", 11, 12),
    Sketcher.Constraint("Equal", 12, 13),
    Sketcher.Constraint("Equal", 13, 14),
    Sketcher.Constraint("Equal", 14, 15),
    Sketcher.Constraint("Symmetric", 3, 3, 10, 3, -1, 1),
    Sketcher.Constraint("Symmetric", 2, 3, 11, 3, -1, 1),
    Sketcher.Constraint("Symmetric", 1, 3, 12, 3, -1, 1),
    Sketcher.Constraint("Symmetric", 0, 3, 13, 3, -1, 1),
    Sketcher.Constraint("Symmetric", 5, 3, 6, 3, -2),
    Sketcher.Constraint("Symmetric", 4, 3, 7, 3, -2),
    Sketcher.Constraint("Symmetric", 1, 3, 10, 3, -2),
    Sketcher.Constraint("Symmetric", 0, 3, 11, 3, -2),
    Sketcher.Constraint("PointOnObject", 8, 3, -2),
    Sketcher.Constraint("PointOnObject", 9, 3, -2),
    Sketcher.Constraint("Horizontal", 0, 3, 1, 3),
    Sketcher.Constraint("Horizontal", 14, 3, 15, 3),
    Sketcher.Constraint("Vertical", 4, 3, 5, 3),
    Sketcher.Constraint("DistanceX", 5, 3, 6, 3, Q("1 in")),
    Sketcher.Constraint("Diameter", 0, Q("0.1065 in")),
    Sketcher.Constraint("DistanceY", 8, 3, 5, 3, Q("2.5 in")),
    Sketcher.Constraint("DistanceY", 9, 3, 4, 3, Q("2.5 in")),
    Sketcher.Constraint("DistanceX", 14, 3, 15, 3, Q("0.5 in")),
    Sketcher.Constraint("DistanceY", 2, 3, 0, 3, Q("3.49 in")),
    Sketcher.Constraint("DistanceY", 14, 3, 3, 3, Q("0.38 in")),
    Sketcher.Constraint("DistanceX", 2, 3, 14, 3, Q("1.84 in")),
    Sketcher.Constraint("DistanceX", 14, 3, -1, 1, Q("3.0625 in")),
    Sketcher.Constraint("DistanceX", 0, 3, 1, 3, Q("0.805 in")),
    Sketcher.Constraint("DistanceY", 4, 3, 5, 3, Q("0.805 in")),
    Sketcher.Constraint("DistanceY", -1, 1, 4, 3, Q("0.8475 in")),
])
doc.recompute()
hole9 = doc.addObject("PartDesign::Hole", "Hole008")
body2.addObject(hole9)
hole9.Profile = sketch14
hole9.ThreadType = "None"
hole9.Diameter = Q("0.1065 in")
hole9.DepthType = "ThroughAll"

# Sketch on XY plane
sketch15 = doc.addObject("Sketcher::SketchObject", "Sketch014")
body2.addObject(sketch15)
sketch15.AttachmentSupport = (doc.getObject("XY_Plane001"), [""])
sketch15.MapMode = "FlatFace"
sketch15.AttachmentOffset = App.Placement(Vector(0, 0, 0.25 * 25.4), App.Rotation())
sketch15.addGeometry([
    Part.Circle(Vector(24.1, 4.8, 0), Vector(0, 0, 1), 1),
    Part.Circle(Vector(24.1, -4.8, 0), Vector(0, 0, 1), 1),
], False)
sketch15.addConstraint([
    Sketcher.Constraint("Equal", 0, 1),
    Sketcher.Constraint("Symmetric", 0, 3, 1, 3, -1),
    Sketcher.Constraint("Diameter", 0, Q("0.082 in")),
    Sketcher.Constraint("DistanceX", -1, 1, 0, 3, Q("0.95 in")),
    Sketcher.Constraint("DistanceY", -1, 1, 0, 3, Q("4.75 mm")),
])
doc.recompute()
hole10 = doc.addObject("PartDesign::Hole", "Hole009")
body2.addObject(hole10)
hole10.Profile = sketch15
hole10.ThreadType = "None"
hole10.Diameter = Q("0.082 in")
hole10.DepthType = "ThroughAll"

doc.recompute()
